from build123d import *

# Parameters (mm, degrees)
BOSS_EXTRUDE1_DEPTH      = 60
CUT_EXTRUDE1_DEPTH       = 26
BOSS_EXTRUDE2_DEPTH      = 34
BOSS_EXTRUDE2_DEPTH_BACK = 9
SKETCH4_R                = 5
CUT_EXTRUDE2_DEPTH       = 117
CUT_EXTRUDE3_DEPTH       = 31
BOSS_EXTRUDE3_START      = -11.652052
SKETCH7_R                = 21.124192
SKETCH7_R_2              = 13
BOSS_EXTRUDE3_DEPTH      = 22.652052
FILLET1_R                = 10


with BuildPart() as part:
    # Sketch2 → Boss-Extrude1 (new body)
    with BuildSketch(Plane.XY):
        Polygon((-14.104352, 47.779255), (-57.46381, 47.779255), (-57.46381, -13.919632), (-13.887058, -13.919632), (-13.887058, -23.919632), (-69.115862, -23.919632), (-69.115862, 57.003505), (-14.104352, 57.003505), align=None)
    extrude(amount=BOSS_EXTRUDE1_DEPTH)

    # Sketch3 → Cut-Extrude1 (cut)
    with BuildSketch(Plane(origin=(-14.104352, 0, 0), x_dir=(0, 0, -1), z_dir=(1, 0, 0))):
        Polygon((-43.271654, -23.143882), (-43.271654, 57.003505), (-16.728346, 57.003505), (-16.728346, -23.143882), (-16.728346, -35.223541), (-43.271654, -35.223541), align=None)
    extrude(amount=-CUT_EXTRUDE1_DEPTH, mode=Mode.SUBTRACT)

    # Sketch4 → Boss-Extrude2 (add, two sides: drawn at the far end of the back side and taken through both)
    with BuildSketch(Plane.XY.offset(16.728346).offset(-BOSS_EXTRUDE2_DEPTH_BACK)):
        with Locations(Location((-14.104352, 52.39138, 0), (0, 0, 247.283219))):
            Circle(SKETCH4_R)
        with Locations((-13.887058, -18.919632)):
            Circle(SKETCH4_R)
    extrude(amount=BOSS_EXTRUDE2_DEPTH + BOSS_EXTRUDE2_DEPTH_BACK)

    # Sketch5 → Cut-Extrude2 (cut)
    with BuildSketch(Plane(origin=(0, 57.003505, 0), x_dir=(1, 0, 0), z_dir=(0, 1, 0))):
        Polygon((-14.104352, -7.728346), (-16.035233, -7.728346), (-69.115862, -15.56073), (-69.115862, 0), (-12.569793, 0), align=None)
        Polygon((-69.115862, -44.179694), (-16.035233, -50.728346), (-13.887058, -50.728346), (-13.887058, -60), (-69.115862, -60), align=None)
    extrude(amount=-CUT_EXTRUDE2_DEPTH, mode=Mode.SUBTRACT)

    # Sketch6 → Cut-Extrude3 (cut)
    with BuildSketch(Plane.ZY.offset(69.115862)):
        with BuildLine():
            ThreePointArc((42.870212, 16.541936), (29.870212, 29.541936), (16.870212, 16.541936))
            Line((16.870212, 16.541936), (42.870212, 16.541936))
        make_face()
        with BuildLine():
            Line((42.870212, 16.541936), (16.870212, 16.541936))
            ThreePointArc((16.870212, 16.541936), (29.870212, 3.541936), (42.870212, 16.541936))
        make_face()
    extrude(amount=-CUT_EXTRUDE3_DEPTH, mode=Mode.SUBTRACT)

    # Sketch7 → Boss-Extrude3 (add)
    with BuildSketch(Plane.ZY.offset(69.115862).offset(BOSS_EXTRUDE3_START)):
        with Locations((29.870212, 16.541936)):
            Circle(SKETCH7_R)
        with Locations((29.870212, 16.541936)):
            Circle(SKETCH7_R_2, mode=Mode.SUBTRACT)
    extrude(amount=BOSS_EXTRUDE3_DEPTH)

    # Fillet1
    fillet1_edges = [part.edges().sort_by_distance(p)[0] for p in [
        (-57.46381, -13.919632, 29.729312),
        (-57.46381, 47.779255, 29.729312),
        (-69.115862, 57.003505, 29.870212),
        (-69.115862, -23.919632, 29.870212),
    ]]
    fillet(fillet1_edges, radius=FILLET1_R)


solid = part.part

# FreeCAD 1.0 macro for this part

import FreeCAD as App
import Part
import Sketcher

V = App.Vector
Q = App.Units.Quantity


def edges_at(feature, points):
    """Names of the edges that pass closest to the given points."""
    edges = feature.Shape.Edges
    near = lambda p: min(range(len(edges)), key=lambda i: edges[i].distToShape(Part.Vertex(*p))[0])
    return sorted({f"Edge{near(p) + 1}" for p in points})

doc = App.newDocument("Part")
body = doc.addObject("PartDesign::Body", "Body")

# Sketch on XY plane
sketch1 = body.newObject("Sketcher::SketchObject", "Sketch")
sketch1.AttachmentSupport = (doc.getObject("XY_Plane"), [""])
sketch1.MapMode = "FlatFace"
sketch1.addGeometry(Part.LineSegment(V(-57.46381, 47.779255, 0), V(-14.104352, 47.779255, 0)), False)
sketch1.addGeometry(Part.LineSegment(V(-14.104352, 47.779255, 0), V(-14.104352, 57.003505, 0)), False)
sketch1.addGeometry(Part.LineSegment(V(-14.104352, 57.003505, 0), V(-69.115862, 57.003505, 0)), False)
sketch1.addGeometry(Part.LineSegment(V(-69.115862, 57.003505, 0), V(-69.115862, -23.919632, 0)), False)
sketch1.addGeometry(Part.LineSegment(V(-69.115862, -23.919632, 0), V(-13.887058, -23.919632, 0)), False)
sketch1.addGeometry(Part.LineSegment(V(-13.887058, -23.919632, 0), V(-13.887058, -13.919632, 0)), False)
sketch1.addGeometry(Part.LineSegment(V(-13.887058, -13.919632, 0), V(-57.46381, -13.919632, 0)), False)
sketch1.addGeometry(Part.LineSegment(V(-57.46381, -13.919632, 0), V(-57.46381, 47.779255, 0)), False)
sketch1.addConstraint(Sketcher.Constraint("Coincident", 0, 2, 1, 1))
sketch1.addConstraint(Sketcher.Constraint("Coincident", 1, 2, 2, 1))
sketch1.addConstraint(Sketcher.Constraint("Coincident", 2, 2, 3, 1))
sketch1.addConstraint(Sketcher.Constraint("Coincident", 3, 2, 4, 1))
sketch1.addConstraint(Sketcher.Constraint("Coincident", 4, 2, 5, 1))
sketch1.addConstraint(Sketcher.Constraint("Coincident", 5, 2, 6, 1))
sketch1.addConstraint(Sketcher.Constraint("Coincident", 6, 2, 7, 1))
sketch1.addConstraint(Sketcher.Constraint("Coincident", 7, 2, 0, 1))
sketch1.addConstraint(Sketcher.Constraint("Horizontal", 0))
sketch1.addConstraint(Sketcher.Constraint("Vertical", 1))
sketch1.addConstraint(Sketcher.Constraint("Horizontal", 2))
sketch1.addConstraint(Sketcher.Constraint("Vertical", 3))
sketch1.addConstraint(Sketcher.Constraint("Horizontal", 4))
sketch1.addConstraint(Sketcher.Constraint("Vertical", 5))
sketch1.addConstraint(Sketcher.Constraint("Horizontal", 6))
sketch1.addConstraint(Sketcher.Constraint("Vertical", 7))
sketch1.addConstraint(Sketcher.Constraint("DistanceY", 5, 1, 5, 2, Q("10 mm")))
sketch1.addConstraint(Sketcher.Constraint("DistanceX", 0, 1, 0, 2, Q("43.359458 mm")))
sketch1.addConstraint(Sketcher.Constraint("DistanceX", 2, 2, 2, 1, Q("55.01151 mm")))
sketch1.addConstraint(Sketcher.Constraint("DistanceY", 1, 1, 1, 2, Q("9.22425 mm")))
sketch1.addConstraint(Sketcher.Constraint("DistanceX", 4, 1, 4, 2, Q("55.228804 mm")))
sketch1.addConstraint(Sketcher.Constraint("DistanceY", 3, 2, 3, 1, Q("80.923137 mm")))
sketch1.addConstraint(Sketcher.Constraint("DistanceY", 3, 2, -1, 1, Q("23.919632 mm")))
sketch1.addConstraint(Sketcher.Constraint("DistanceX", 6, 2, -1, 1, Q("57.46381 mm")))
pad1 = body.newObject("PartDesign::Pad", "Pad")
pad1.Profile = sketch1
pad1.Length = 60

# Sketch on YZ plane
sketch2 = body.newObject("Sketcher::SketchObject", "Sketch001")
sketch2.AttachmentSupport = (doc.getObject("YZ_Plane"), [""])
sketch2.MapMode = "FlatFace"
sketch2.AttachmentOffset = App.Placement(V(0, 0, -14.104352), App.Rotation())
sketch2.addGeometry(Part.LineSegment(V(57.003505, 43.271654, 0), V(-35.223541, 43.271654, 0)), False)
sketch2.addGeometry(Part.LineSegment(V(-35.223541, 43.271654, 0), V(-35.223541, 16.728346, 0)), False)
sketch2.addGeometry(Part.LineSegment(V(-35.223541, 16.728346, 0), V(57.003505, 16.728346, 0)), False)
sketch2.addGeometry(Part.LineSegment(V(57.003505, 16.728346, 0), V(57.003505, 43.271654, 0)), False)
sketch2.addConstraint(Sketcher.Constraint("Coincident", 0, 2, 1, 1))
sketch2.addConstraint(Sketcher.Constraint("Coincident", 1, 2, 2, 1))
sketch2.addConstraint(Sketcher.Constraint("Coincident", 2, 2, 3, 1))
sketch2.addConstraint(Sketcher.Constraint("Coincident", 3, 2, 0, 1))
sketch2.addConstraint(Sketcher.Constraint("Horizontal", 0))
sketch2.addConstraint(Sketcher.Constraint("Vertical", 1))
sketch2.addConstraint(Sketcher.Constraint("Horizontal", 2))
sketch2.addConstraint(Sketcher.Constraint("Vertical", 3))
sketch2.addConstraint(Sketcher.Constraint("DistanceX", 0, 2, 0, 1, Q("92.227046 mm")))
sketch2.addConstraint(Sketcher.Constraint("DistanceY", 1, 2, 1, 1, Q("26.543308 mm")))
sketch2.addConstraint(Sketcher.Constraint("DistanceX", 0, 2, -1, 1, Q("35.223541 mm")))
sketch2.addConstraint(Sketcher.Constraint("DistanceY", -1, 1, 0, 2, Q("43.271654 mm")))
pocket1 = body.newObject("PartDesign::Pocket", "Pocket")
pocket1.Profile = sketch2
pocket1.Length = 26

# Sketch on XY plane
sketch3 = body.newObject("Sketcher::SketchObject", "Sketch002")
sketch3.AttachmentSupport = (doc.getObject("XY_Plane"), [""])
sketch3.MapMode = "FlatFace"
sketch3.AttachmentOffset = App.Placement(V(0, 0, 16.728346), App.Rotation())
sketch3.addGeometry(Part.Circle(V(-14.104352, 52.39138, 0), V(0, 0, 1), 5), False)
sketch3.addGeometry(Part.Circle(V(-13.887058, -18.919632, 0), V(0, 0, 1), 5), False)
sketch3.addConstraint(Sketcher.Constraint("Equal", 0, 1))
sketch3.addConstraint(Sketcher.Constraint("Diameter", 0, Q("10 mm")))
sketch3.addConstraint(Sketcher.Constraint("DistanceY", -1, 1, 0, 3, Q("52.39138 mm")))
sketch3.addConstraint(Sketcher.Constraint("DistanceY", 1, 3, -1, 1, Q("18.919632 mm")))
sketch3.addConstraint(Sketcher.Constraint("DistanceX", 0, 3, -1, 1, Q("14.104352 mm")))
sketch3.addConstraint(Sketcher.Constraint("DistanceX", 1, 3, -1, 1, Q("13.887058 mm")))
pad2 = body.newObject("PartDesign::Pad", "Pad001")
pad2.Profile = sketch3
pad2.Type = "TwoLengths"
pad2.Length = 34
pad2.Length2 = 9

# Sketch on XZ plane
sketch4 = body.newObject("Sketcher::SketchObject", "Sketch003")
sketch4.AttachmentSupport = (doc.getObject("XZ_Plane"), [""])
sketch4.MapMode = "FlatFace"
sketch4.AttachmentOffset = App.Placement(V(0, 0, -57.003505), App.Rotation())
sketch4.addGeometry(Part.LineSegment(V(-16.035233, 7.728346, 0), V(-14.104352, 7.728346, 0)), False)
sketch4.addGeometry(Part.LineSegment(V(-14.104352, 7.728346, 0), V(-12.569793, 0, 0)), False)
sketch4.addGeometry(Part.LineSegment(V(-12.569793, 0, 0), V(-69.115862, 0, 0)), False)
sketch4.addGeometry(Part.LineSegment(V(-69.115862, 0, 0), V(-69.115862, 15.56073, 0)), False)
sketch4.addGeometry(Part.LineSegment(V(-69.115862, 15.56073, 0), V(-16.035233, 7.728346, 0)), False)
sketch4.addGeometry(Part.LineSegment(V(-16.035233, 50.728346, 0), V(-69.115862, 44.179694, 0)), False)
sketch4.addGeometry(Part.LineSegment(V(-69.115862, 44.179694, 0), V(-69.115862, 60, 0)), False)
sketch4.addGeometry(Part.LineSegment(V(-69.115862, 60, 0), V(-13.887058, 60, 0)), False)
sketch4.addGeometry(Part.LineSegment(V(-13.887058, 60, 0), V(-13.887058, 50.728346, 0)), False)
sketch4.addGeometry(Part.LineSegment(V(-13.887058, 50.728346, 0), V(-16.035233, 50.728346, 0)), False)
sketch4.addConstraint(Sketcher.Constraint("Coincident", 0, 2, 1, 1))
sketch4.addConstraint(Sketcher.Constraint("Coincident", 1, 2, 2, 1))
sketch4.addConstraint(Sketcher.Constraint("Coincident", 2, 2, 3, 1))
sketch4.addConstraint(Sketcher.Constraint("Coincident", 3, 2, 4, 1))
sketch4.addConstraint(Sketcher.Constraint("Coincident", 4, 2, 0, 1))
sketch4.addConstraint(Sketcher.Constraint("Coincident", 5, 2, 6, 1))
sketch4.addConstraint(Sketcher.Constraint("Coincident", 6, 2, 7, 1))
sketch4.addConstraint(Sketcher.Constraint("Coincident", 7, 2, 8, 1))
sketch4.addConstraint(Sketcher.Constraint("Coincident", 8, 2, 9, 1))
sketch4.addConstraint(Sketcher.Constraint("Coincident", 9, 2, 5, 1))
sketch4.addConstraint(Sketcher.Constraint("Horizontal", 0))
sketch4.addConstraint(Sketcher.Constraint("Horizontal", 2))
sketch4.addConstraint(Sketcher.Constraint("Vertical", 3))
sketch4.addConstraint(Sketcher.Constraint("Vertical", 6))
sketch4.addConstraint(Sketcher.Constraint("Horizontal", 7))
sketch4.addConstraint(Sketcher.Constraint("Vertical", 8))
sketch4.addConstraint(Sketcher.Constraint("Horizontal", 9))
sketch4.addConstraint(Sketcher.Constraint("PointOnObject", 1, 2, -1))
sketch4.addConstraint(Sketcher.Constraint("Vertical", 3, 2, 5, 2))
sketch4.addConstraint(Sketcher.Constraint("Vertical", 4, 2, 9, 2))
sketch4.addConstraint(Sketcher.Constraint("DistanceY", -1, 1, 6, 2, Q("60 mm")))
sketch4.addConstraint(Sketcher.Constraint("DistanceY", 0, 2, 8, 2, Q("43 mm")))
sketch4.addConstraint(Sketcher.Constraint("DistanceX", 0, 1, 0, 2, Q("1.930881 mm")))
sketch4.addConstraint(Sketcher.Constraint("DistanceX", 2, 2, 2, 1, Q("56.546069 mm")))
sketch4.addConstraint(Sketcher.Constraint("DistanceY", 3, 1, 3, 2, Q("15.56073 mm")))
sketch4.addConstraint(Sketcher.Constraint("DistanceX", 7, 1, 7, 2, Q("55.228804 mm")))
sketch4.addConstraint(Sketcher.Constraint("DistanceX", 9, 2, 9, 1, Q("2.148175 mm")))
sketch4.addConstraint(Sketcher.Constraint("DistanceY", 6, 1, 6, 2, Q("15.820306 mm")))
sketch4.addConstraint(Sketcher.Constraint("DistanceY", 8, 2, 8, 1, Q("9.271654 mm")))
sketch4.addConstraint(Sketcher.Constraint("DistanceX", 0, 2, -1, 1, Q("14.104352 mm")))
pocket2 = body.newObject("PartDesign::Pocket", "Pocket001")
pocket2.Profile = sketch4
pocket2.Length = 117
pocket2.Reversed = True

# Sketch on YZ plane
sketch5 = body.newObject("Sketcher::SketchObject", "Sketch004")
sketch5.AttachmentSupport = (doc.getObject("YZ_Plane"), [""])
sketch5.MapMode = "FlatFace"
sketch5.AttachmentOffset = App.Placement(V(0, 0, -69.115862), App.Rotation())
sketch5.addGeometry(Part.Circle(V(16.541936, 29.870212, 0), V(0, 0, 1), 13), False)
sketch5.addConstraint(Sketcher.Constraint("Diameter", 0, Q("26 mm")))
sketch5.addConstraint(Sketcher.Constraint("DistanceY", -1, 1, 0, 3, Q("29.870212 mm")))
sketch5.addConstraint(Sketcher.Constraint("DistanceX", -1, 1, 0, 3, Q("16.541936 mm")))
pocket3 = body.newObject("PartDesign::Pocket", "Pocket002")
pocket3.Profile = sketch5
pocket3.Length = 31
pocket3.Reversed = True

# Sketch on YZ plane
sketch6 = body.newObject("Sketcher::SketchObject", "Sketch005")
sketch6.AttachmentSupport = (doc.getObject("YZ_Plane"), [""])
sketch6.MapMode = "FlatFace"
sketch6.AttachmentOffset = App.Placement(V(0, 0, -57.46381), App.Rotation())
sketch6.addGeometry(Part.Circle(V(16.541936, 29.870212, 0), V(0, 0, 1), 21.124192), False)
sketch6.addGeometry(Part.Circle(V(16.541936, 29.870212, 0), V(0, 0, 1), 13), False)
sketch6.addConstraint(Sketcher.Constraint("Coincident", 1, 3, 0, 3))
sketch6.addConstraint(Sketcher.Constraint("Diameter", 1, Q("26 mm")))
sketch6.addConstraint(Sketcher.Constraint("Diameter", 0, Q("42.248384 mm")))
sketch6.addConstraint(Sketcher.Constraint("DistanceY", -1, 1, 0, 3, Q("29.870212 mm")))
sketch6.addConstraint(Sketcher.Constraint("DistanceX", -1, 1, 0, 3, Q("16.541936 mm")))
pad3 = body.newObject("PartDesign::Pad", "Pad002")
pad3.Profile = sketch6
pad3.Length = 22.652052
pad3.Reversed = True
doc.recompute()

fillet = body.newObject("PartDesign::Fillet", "Fillet")
fillet.Base = (pad3, edges_at(pad3, [
    (-57.464, -13.92, 29.729),
    (-57.464, 47.779, 29.729),
    (-69.116, 57.004, 29.87),
    (-69.116, -23.92, 29.87),
]))
fillet.Radius = 10

doc.recompute()
